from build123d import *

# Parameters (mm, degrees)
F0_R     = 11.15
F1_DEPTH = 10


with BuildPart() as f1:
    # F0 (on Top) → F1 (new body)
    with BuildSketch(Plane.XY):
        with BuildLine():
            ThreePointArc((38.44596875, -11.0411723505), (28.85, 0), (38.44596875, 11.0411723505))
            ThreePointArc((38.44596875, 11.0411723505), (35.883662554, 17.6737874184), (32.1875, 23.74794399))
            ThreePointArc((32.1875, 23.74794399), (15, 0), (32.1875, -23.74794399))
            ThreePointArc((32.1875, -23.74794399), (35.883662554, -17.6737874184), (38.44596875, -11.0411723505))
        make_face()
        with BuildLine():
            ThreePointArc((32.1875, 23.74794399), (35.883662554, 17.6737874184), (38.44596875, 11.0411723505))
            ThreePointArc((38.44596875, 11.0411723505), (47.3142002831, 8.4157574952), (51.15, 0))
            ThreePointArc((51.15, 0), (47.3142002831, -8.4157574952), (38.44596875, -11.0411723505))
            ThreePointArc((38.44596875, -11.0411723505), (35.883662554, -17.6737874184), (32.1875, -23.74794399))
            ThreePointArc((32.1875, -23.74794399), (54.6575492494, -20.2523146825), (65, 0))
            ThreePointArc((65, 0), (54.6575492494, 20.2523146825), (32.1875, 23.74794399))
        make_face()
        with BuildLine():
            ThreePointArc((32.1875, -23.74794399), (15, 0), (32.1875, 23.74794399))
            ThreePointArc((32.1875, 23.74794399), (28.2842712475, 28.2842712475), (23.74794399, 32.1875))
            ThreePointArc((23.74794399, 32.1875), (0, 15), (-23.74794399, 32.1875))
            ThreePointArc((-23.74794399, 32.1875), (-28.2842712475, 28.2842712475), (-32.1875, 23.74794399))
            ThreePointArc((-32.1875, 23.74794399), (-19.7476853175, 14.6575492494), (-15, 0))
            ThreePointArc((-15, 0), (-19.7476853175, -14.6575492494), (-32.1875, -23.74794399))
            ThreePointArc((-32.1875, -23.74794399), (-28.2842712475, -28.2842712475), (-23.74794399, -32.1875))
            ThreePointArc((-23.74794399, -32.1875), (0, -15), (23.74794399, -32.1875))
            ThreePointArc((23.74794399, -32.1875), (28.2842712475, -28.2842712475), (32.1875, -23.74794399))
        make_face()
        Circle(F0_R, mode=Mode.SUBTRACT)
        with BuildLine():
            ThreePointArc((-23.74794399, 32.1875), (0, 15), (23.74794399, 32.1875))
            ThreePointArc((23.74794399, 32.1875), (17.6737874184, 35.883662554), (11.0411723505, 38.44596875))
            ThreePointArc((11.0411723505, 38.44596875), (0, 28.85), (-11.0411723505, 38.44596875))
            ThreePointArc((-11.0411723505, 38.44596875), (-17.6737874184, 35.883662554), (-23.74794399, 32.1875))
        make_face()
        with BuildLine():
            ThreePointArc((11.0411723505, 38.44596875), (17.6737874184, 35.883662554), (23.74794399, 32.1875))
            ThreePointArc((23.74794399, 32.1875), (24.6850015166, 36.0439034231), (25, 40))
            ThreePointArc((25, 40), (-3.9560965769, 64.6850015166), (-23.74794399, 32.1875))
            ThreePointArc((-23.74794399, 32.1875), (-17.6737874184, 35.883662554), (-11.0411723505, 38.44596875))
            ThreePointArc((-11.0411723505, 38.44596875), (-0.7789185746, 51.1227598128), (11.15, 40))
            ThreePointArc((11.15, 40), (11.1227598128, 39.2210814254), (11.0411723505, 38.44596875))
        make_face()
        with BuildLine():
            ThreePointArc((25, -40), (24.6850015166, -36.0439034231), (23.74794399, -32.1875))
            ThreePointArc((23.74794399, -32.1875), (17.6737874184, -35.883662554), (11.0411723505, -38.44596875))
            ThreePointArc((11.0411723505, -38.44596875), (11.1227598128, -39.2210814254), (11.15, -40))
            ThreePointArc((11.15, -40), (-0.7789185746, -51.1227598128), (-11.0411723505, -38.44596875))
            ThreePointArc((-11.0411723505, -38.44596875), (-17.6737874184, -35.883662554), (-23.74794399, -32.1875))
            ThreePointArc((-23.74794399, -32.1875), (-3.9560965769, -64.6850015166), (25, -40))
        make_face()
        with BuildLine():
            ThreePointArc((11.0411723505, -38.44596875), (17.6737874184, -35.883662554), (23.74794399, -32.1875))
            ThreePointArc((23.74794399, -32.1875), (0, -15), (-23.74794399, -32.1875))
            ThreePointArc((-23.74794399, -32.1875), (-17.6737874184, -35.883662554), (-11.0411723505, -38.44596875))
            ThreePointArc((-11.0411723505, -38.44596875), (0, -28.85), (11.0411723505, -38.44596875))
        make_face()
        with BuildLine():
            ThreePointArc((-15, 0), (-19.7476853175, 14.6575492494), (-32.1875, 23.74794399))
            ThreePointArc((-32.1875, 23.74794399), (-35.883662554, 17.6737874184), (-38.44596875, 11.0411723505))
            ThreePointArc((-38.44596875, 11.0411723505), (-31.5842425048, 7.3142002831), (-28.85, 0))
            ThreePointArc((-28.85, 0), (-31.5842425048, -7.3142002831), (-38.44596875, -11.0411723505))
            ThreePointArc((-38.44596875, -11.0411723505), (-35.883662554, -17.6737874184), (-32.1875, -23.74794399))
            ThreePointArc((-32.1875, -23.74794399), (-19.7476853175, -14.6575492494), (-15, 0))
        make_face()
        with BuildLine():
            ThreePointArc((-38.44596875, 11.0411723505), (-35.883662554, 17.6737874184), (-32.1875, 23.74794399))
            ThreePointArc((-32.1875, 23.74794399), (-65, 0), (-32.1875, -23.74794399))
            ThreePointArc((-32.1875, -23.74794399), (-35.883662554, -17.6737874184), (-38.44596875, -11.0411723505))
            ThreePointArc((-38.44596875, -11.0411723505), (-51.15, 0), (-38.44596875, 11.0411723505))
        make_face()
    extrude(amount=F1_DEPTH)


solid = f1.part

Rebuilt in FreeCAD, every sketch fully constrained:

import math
import FreeCAD as App
import Part
import Sketcher

V = App.Vector
Q = App.Units.Quantity

doc = App.newDocument("Part")
body = doc.addObject("PartDesign::Body", "Body")

sketch1 = doc.addObject("Sketcher::SketchObject", "Sketch")
body.addObject(sketch1)
sketch1.AttachmentSupport = (doc.XY_Plane, [""])
sketch1.MapMode = "FlatFace"
sketch1.addGeometry([
    Part.ArcOfCircle(Part.Circle(V(40, 0, 0), V(0, 0, 1), 25), math.radians(-108), math.radians(0)),
    Part.ArcOfCircle(Part.Circle(V(40, 0, 0), V(0, 0, 1), 25), math.radians(0), math.radians(108)),
    Part.ArcOfCircle(Part.Circle(V(0, 0, 0), V(0, 0, 1), 40), math.radians(36.42), math.radians(53.58)),
    Part.ArcOfCircle(Part.Circle(V(0, 40, 0), V(0, 0, 1), 25), math.radians(-18.21), math.radians(0)),
    Part.ArcOfCircle(Part.Circle(V(0, 40, 0), V(0, 0, 1), 25), math.radians(0), math.radians(198)),
    Part.ArcOfCircle(Part.Circle(V(0, 0, 0), V(0, 0, 1), 40), math.radians(126.42), math.radians(143.58)),
    Part.ArcOfCircle(Part.Circle(V(-40, 0, 0), V(0, 0, 1), 25), math.radians(72), math.radians(288)),
    Part.ArcOfCircle(Part.Circle(V(0, 0, 0), V(0, 0, 1), 40), math.radians(-143.58), math.radians(-126.42)),
    Part.ArcOfCircle(Part.Circle(V(0, -40, 0), V(0, 0, 1), 25), math.radians(162), math.radians(360)),
    Part.ArcOfCircle(Part.Circle(V(0, -40, 0), V(0, 0, 1), 25), math.radians(0), math.radians(18.21)),
    Part.ArcOfCircle(Part.Circle(V(0, 0, 0), V(0, 0, 1), 40), math.radians(-53.58), math.radians(-36.42)),
    Part.Circle(V(-40, 0, 0), V(0, 0, 1), 11.2),
    Part.ArcOfCircle(Part.Circle(V(0, 40, 0), V(0, 0, 1), 11.2), math.radians(0), math.radians(352)),
    Part.ArcOfCircle(Part.Circle(V(0, 40, 0), V(0, 0, 1), 11.2), math.radians(-8.01), math.radians(0)),
    Part.Circle(V(0, 0, 0), V(0, 0, 1), 11.2),
    Part.Circle(V(40, 0, 0), V(0, 0, 1), 11.2),
    Part.ArcOfCircle(Part.Circle(V(0, -40, 0), V(0, 0, 1), 11.2), math.radians(0), math.radians(8.01)),
    Part.ArcOfCircle(Part.Circle(V(0, -40, 0), V(0, 0, 1), 11.2), math.radians(8), math.radians(360)),
], False)
sketch1.addConstraint([
    Sketcher.Constraint("Tangent", 0, 2, 1, 1),
    Sketcher.Constraint("Coincident", 1, 2, 2, 1),
    Sketcher.Constraint("Coincident", 2, 2, 3, 1),
    Sketcher.Constraint("Tangent", 3, 2, 4, 1),
    Sketcher.Constraint("Coincident", 4, 2, 5, 1),
    Sketcher.Constraint("Coincident", 5, 2, 6, 1),
    Sketcher.Constraint("Coincident", 6, 2, 7, 1),
    Sketcher.Constraint("Coincident", 7, 2, 8, 1),
    Sketcher.Constraint("Tangent", 8, 2, 9, 1),
    Sketcher.Constraint("Coincident", 9, 2, 10, 1),
    Sketcher.Constraint("Coincident", 10, 2, 0, 1),
    Sketcher.Constraint("Tangent", 12, 1, 13, 2),
    Sketcher.Constraint("Coincident", 13, 1, 12, 2),
    Sketcher.Constraint("Tangent", 16, 1, 17, 2),
    Sketcher.Constraint("Coincident", 17, 1, 16, 2),
    Sketcher.Constraint("Coincident", 2, 3, -1, 1),
    Sketcher.Constraint("Coincident", 5, 3, -1, 1),
    Sketcher.Constraint("Coincident", 7, 3, -1, 1),
    Sketcher.Constraint("Coincident", 10, 3, -1, 1),
    Sketcher.Constraint("Coincident", 14, 3, -1, 1),
    Sketcher.Constraint("Coincident", 11, 3, 6, 3),
    Sketcher.Constraint("Coincident", 12, 3, 3, 3),
    Sketcher.Constraint("Coincident", 15, 3, 0, 3),
    Sketcher.Constraint("Coincident", 16, 3, 8, 3),
    Sketcher.Constraint("Equal", 0, 1),
    Sketcher.Constraint("Equal", 1, 3),
    Sketcher.Constraint("Equal", 3, 4),
    Sketcher.Constraint("Equal", 2, 5),
    Sketcher.Constraint("Equal", 4, 6),
    Sketcher.Constraint("Equal", 5, 7),
    Sketcher.Constraint("Equal", 6, 8),
    Sketcher.Constraint("Equal", 8, 9),
    Sketcher.Constraint("Equal", 7, 10),
    Sketcher.Constraint("Equal", 11, 12),
    Sketcher.Constraint("Equal", 13, 14),
    Sketcher.Constraint("Equal", 14, 15),
    Sketcher.Constraint("Equal", 15, 16),
    Sketcher.Constraint("Symmetric", 0, 3, 6, 3, -1, 1),
    Sketcher.Constraint("Symmetric", 3, 3, 8, 3, -1, 1),
    Sketcher.Constraint("Symmetric", 3, 2, 8, 2, -1),
    Sketcher.Constraint("PointOnObject", 0, 3, -1),
    Sketcher.Constraint("PointOnObject", 0, 2, -1),
    Sketcher.Constraint("Horizontal", 13, 3, 3, 2),
    Sketcher.Constraint("Horizontal", 3, 2, 12, 1),
    Sketcher.Constraint("Horizontal", 8, 2, 16, 1),
    Sketcher.Constraint("Vertical", 13, 1, 17, 1),
    Sketcher.Constraint("Radius", 0, Q("25 mm")),
    Sketcher.Constraint("Radius", 2, Q("40 mm")),
    Sketcher.Constraint("Diameter", 11, Q("22.3 mm")),
    Sketcher.Constraint("DistanceX", -1, 1, 0, 3, Q("40 mm")),
    Sketcher.Constraint("DistanceY", -1, 1, 3, 3, Q("40 mm")),
    Sketcher.Constraint("DistanceY", -1, 1, 13, 1, Q("38.445969 mm")),
])
pad1 = doc.addObject("PartDesign::Pad", "Pad")
body.addObject(pad1)
pad1.Profile = sketch1
pad1.Length = 10

doc.recompute()
